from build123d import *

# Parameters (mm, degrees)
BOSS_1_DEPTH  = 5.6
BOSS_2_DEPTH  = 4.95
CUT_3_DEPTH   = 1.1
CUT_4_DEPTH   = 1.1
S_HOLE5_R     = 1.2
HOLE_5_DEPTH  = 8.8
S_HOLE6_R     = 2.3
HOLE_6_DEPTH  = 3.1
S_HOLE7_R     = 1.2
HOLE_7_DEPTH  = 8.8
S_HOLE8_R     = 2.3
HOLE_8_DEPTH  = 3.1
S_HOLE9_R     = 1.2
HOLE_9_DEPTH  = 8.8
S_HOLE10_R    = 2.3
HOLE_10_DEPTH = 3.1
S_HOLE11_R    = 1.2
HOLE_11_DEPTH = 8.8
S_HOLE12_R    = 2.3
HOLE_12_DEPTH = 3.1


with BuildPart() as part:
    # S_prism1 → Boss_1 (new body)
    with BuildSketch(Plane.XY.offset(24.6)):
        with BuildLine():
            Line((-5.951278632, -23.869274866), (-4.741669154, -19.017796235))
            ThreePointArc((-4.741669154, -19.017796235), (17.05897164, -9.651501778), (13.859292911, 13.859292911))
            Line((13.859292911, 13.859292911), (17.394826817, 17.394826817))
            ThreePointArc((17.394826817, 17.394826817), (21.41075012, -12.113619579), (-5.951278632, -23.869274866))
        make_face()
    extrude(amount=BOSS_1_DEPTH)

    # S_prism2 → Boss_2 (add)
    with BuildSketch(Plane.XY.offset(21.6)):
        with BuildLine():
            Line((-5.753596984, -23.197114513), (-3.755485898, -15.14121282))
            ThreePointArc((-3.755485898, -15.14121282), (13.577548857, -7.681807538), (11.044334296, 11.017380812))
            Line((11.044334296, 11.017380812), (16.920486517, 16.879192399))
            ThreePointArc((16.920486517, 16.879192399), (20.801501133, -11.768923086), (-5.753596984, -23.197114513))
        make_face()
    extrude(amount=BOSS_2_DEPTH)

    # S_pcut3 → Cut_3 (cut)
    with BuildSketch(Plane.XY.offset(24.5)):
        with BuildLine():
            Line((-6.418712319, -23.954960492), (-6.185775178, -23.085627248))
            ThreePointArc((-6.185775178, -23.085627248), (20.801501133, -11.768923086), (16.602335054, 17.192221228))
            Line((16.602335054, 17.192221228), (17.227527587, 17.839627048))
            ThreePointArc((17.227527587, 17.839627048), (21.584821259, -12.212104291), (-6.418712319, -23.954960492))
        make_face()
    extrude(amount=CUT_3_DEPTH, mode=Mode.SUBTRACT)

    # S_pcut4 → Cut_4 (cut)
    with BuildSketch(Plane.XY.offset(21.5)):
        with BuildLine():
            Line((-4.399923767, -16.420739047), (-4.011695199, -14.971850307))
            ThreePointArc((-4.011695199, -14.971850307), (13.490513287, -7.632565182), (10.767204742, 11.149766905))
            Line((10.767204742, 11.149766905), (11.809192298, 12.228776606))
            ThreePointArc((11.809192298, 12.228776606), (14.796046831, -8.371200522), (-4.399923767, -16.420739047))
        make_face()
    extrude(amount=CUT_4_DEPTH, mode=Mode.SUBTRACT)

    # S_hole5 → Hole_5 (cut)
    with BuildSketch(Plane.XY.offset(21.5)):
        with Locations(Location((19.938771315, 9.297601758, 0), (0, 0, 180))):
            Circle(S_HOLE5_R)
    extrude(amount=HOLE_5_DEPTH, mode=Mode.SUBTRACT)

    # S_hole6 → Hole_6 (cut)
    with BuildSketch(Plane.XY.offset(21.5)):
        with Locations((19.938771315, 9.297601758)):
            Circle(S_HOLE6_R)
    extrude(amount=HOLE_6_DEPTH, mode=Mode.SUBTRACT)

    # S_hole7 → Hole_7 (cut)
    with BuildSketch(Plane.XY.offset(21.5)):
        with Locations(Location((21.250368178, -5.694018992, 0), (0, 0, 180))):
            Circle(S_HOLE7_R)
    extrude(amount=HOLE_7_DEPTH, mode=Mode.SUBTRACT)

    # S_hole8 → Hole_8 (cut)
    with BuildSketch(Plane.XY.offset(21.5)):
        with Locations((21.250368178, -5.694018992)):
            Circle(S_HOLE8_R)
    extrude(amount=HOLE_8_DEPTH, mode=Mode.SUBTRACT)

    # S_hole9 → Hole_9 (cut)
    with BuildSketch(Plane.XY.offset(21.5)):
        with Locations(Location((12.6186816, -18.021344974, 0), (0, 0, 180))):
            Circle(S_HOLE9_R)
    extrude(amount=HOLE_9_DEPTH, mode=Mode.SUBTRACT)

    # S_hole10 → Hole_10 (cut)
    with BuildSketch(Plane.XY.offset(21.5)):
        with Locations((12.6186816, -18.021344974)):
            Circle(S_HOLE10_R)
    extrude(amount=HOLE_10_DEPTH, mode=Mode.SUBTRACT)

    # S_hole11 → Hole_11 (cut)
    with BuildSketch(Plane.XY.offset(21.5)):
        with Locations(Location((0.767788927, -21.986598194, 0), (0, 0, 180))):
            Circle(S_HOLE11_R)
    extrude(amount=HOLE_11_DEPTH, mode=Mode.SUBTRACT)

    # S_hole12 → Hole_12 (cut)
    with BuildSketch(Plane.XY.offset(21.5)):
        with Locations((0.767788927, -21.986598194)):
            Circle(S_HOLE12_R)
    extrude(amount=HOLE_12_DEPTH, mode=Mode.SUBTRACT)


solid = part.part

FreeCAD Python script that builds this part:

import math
import FreeCAD as App
import Part
import Sketcher

V = App.Vector
Q = App.Units.Quantity

doc = App.newDocument("Part")
params = doc.addObject("Spreadsheet::Sheet", "Params")
for row, (alias, value) in enumerate([
    ("sketch1_radius", "24.6 mm"),
    ("sketch1_radius2", "19.6 mm"),
    ("pad1_length", "5.6 mm"),
    ("sketch2_radius", "23.9 mm"),
    ("sketch2_radius2", "15.6 mm"),
    ("pad2_length", "4.95 mm"),
    ("sketch3_radius", "24.8 mm"),
    ("sketch3_radius2", "23.9 mm"),
    ("pocket1_length", "1.1 mm"),
    ("sketch4_radius", "17 mm"),
    ("sketch4_radius2", "15.5 mm"),
    ("pocket2_length", "1.1 mm"),
    ("sketch5_diameter", "2.4 mm"),
    ("pocket3_length", "8.8 mm"),
    ("sketch6_diameter", "4.6 mm"),
    ("pocket4_length", "3.1 mm"),
    ("sketch7_diameter", "2.4 mm"),
    ("pocket5_length", "8.8 mm"),
    ("sketch8_diameter", "4.6 mm"),
    ("pocket6_length", "3.1 mm"),
    ("sketch9_diameter", "2.4 mm"),
    ("pocket7_length", "8.8 mm"),
    ("sketch10_diameter", "4.6 mm"),
    ("pocket8_length", "3.1 mm"),
    ("sketch11_diameter", "2.4 mm"),
    ("pocket9_length", "8.8 mm"),
    ("sketch12_diameter", "4.6 mm"),
    ("pocket10_length", "3.1 mm"),
], start=1):
    params.set(f"A{row}", alias)
    params.set(f"B{row}", "=" + value)
    params.setAlias(f"B{row}", alias)

body = doc.addObject("PartDesign::Body", "Body")

# Sketch on XY plane
sketch1 = doc.addObject("Sketcher::SketchObject", "Sketch")
body.addObject(sketch1)
sketch1.AttachmentSupport = (doc.XY_Plane, [""])
sketch1.MapMode = "FlatFace"
sketch1.AttachmentOffset = App.Placement(V(0, 0, 24.6), App.Rotation())
sketch1.addGeometry([
    Part.LineSegment(V(-4.7, -19, 0), V(-6, -23.9, 0)),
    Part.ArcOfCircle(Part.Circle(V(0, 0, 0), V(0, 0, 1), 24.6), math.radians(-104), math.radians(45)),
    Part.LineSegment(V(17.4, 17.4, 0), V(13.9, 13.9, 0)),
    Part.ArcOfCircle(Part.Circle(V(0, 0, 0), V(0, 0, 1), 19.6), math.radians(-104), math.radians(45)),
], False)
sketch1.addConstraint([
    Sketcher.Constraint("Coincident", 0, 2, 1, 1),
    Sketcher.Constraint("Coincident", 1, 2, 2, 1),
    Sketcher.Constraint("Coincident", 2, 2, 3, 2),
    Sketcher.Constraint("Coincident", 3, 1, 0, 1),
    Sketcher.Constraint("Coincident", 1, 3, -1, 1),
    Sketcher.Constraint("Coincident", 3, 3, -1, 1),
    Sketcher.Constraint("Radius", 1, Q("24.6 mm")),
    Sketcher.Constraint("Radius", 3, Q("19.6 mm")),
    Sketcher.Constraint("Angle", 0, Q("-104 deg")),
    Sketcher.Constraint("Angle", 2, Q("-135 deg")),
    Sketcher.Constraint("DistanceY", 0, 2, 1, 2, Q("41.264102 mm")),
    Sketcher.Constraint("DistanceX", 0, 2, -1, 1, Q("5.951279 mm")),
])
sketch1.setExpression("Constraints[6]", "Params.sketch1_radius")
sketch1.setExpression("Constraints[7]", "Params.sketch1_radius2")
pad1 = doc.addObject("PartDesign::Pad", "Pad")
body.addObject(pad1)
pad1.Profile = sketch1
pad1.setExpression("Length", "Params.pad1_length")

# Sketch on XY plane
sketch2 = doc.addObject("Sketcher::SketchObject", "Sketch001")
body.addObject(sketch2)
sketch2.AttachmentSupport = (doc.XY_Plane, [""])
sketch2.MapMode = "FlatFace"
sketch2.AttachmentOffset = App.Placement(V(0, 0, 21.6), App.Rotation())
sketch2.addGeometry([
    Part.LineSegment(V(-4, -15, 0), V(-6, -23, 0)),
    Part.ArcOfCircle(Part.Circle(V(0, 0, 0), V(0, 0, 1), 24), math.radians(-104), math.radians(45)),
    Part.LineSegment(V(17, 17, 0), V(11, 11, 0)),
    Part.ArcOfCircle(Part.Circle(V(0, 0, 0), V(0, 0, 1), 16), math.radians(-104), math.radians(45)),
], False)
sketch2.addConstraint([
    Sketcher.Constraint("Coincident", 0, 2, 1, 1),
    Sketcher.Constraint("Coincident", 1, 2, 2, 1),
    Sketcher.Constraint("Coincident", 2, 2, 3, 2),
    Sketcher.Constraint("Coincident", 3, 1, 0, 1),
    Sketcher.Constraint("Coincident", 1, 3, -1, 1),
    Sketcher.Constraint("Coincident", 3, 3, -1, 1),
    Sketcher.Constraint("Radius", 1, Q("23.9 mm")),
    Sketcher.Constraint("Radius", 3, Q("15.6 mm")),
    Sketcher.Constraint("Angle", 0, Q("-103.93 deg")),
    Sketcher.Constraint("Angle", 2, Q("-135.07 deg")),
    Sketcher.Constraint("DistanceY", -1, 1, 2, 2, Q("11.017381 mm")),
    Sketcher.Constraint("DistanceX", 0, 2, 2, 2, Q("16.797931 mm")),
])
sketch2.setExpression("Constraints[6]", "Params.sketch2_radius")
sketch2.setExpression("Constraints[7]", "Params.sketch2_radius2")
pad2 = doc.addObject("PartDesign::Pad", "Pad001")
body.addObject(pad2)
pad2.Profile = sketch2
pad2.setExpression("Length", "Params.pad2_length")

# Sketch on XY plane
sketch3 = doc.addObject("Sketcher::SketchObject", "Sketch002")
body.addObject(sketch3)
sketch3.AttachmentSupport = (doc.XY_Plane, [""])
sketch3.MapMode = "FlatFace"
sketch3.AttachmentOffset = App.Placement(V(0, 0, 24.5), App.Rotation())
sketch3.addGeometry([
    Part.LineSegment(V(-6.2, -23.1, 0), V(-6.4, -24, 0)),
    Part.ArcOfCircle(Part.Circle(V(0, 0, 0), V(0, 0, 1), 24.8), math.radians(-105), math.radians(46)),
    Part.LineSegment(V(17.2, 17.8, 0), V(16.6, 17.2, 0)),
    Part.ArcOfCircle(Part.Circle(V(0, 0, 0), V(0, 0, 1), 23.9), math.radians(-105), math.radians(46)),
], False)
sketch3.addConstraint([
    Sketcher.Constraint("Coincident", 0, 2, 1, 1),
    Sketcher.Constraint("Coincident", 1, 2, 2, 1),
    Sketcher.Constraint("Coincident", 2, 2, 3, 2),
    Sketcher.Constraint("Coincident", 3, 1, 0, 1),
    Sketcher.Constraint("Coincident", 1, 3, -1, 1),
    Sketcher.Constraint("Coincident", 3, 3, -1, 1),
    Sketcher.Constraint("Radius", 1, Q("24.8 mm")),
    Sketcher.Constraint("Radius", 3, Q("23.9 mm")),
    Sketcher.Constraint("Angle", 0, Q("-105 deg")),
    Sketcher.Constraint("Angle", 2, Q("-134 deg")),
    Sketcher.Constraint("DistanceY", 0, 2, -1, 1, Q("23.95496 mm")),
    Sketcher.Constraint("DistanceY", -1, 1, 2, 2, Q("17.192221 mm")),
])
sketch3.setExpression("Constraints[6]", "Params.sketch3_radius")
sketch3.setExpression("Constraints[7]", "Params.sketch3_radius2")
pocket1 = doc.addObject("PartDesign::Pocket", "Pocket")
body.addObject(pocket1)
pocket1.Profile = sketch3
pocket1.setExpression("Length", "Params.pocket1_length")
pocket1.Reversed = True

# Sketch on XY plane
sketch4 = doc.addObject("Sketcher::SketchObject", "Sketch003")
body.addObject(sketch4)
sketch4.AttachmentSupport = (doc.XY_Plane, [""])
sketch4.MapMode = "FlatFace"
sketch4.AttachmentOffset = App.Placement(V(0, 0, 21.5), App.Rotation())
sketch4.addGeometry([
    Part.LineSegment(V(-4, -15, 0), V(-4.4, -16.4, 0)),
    Part.ArcOfCircle(Part.Circle(V(0, 0, 0), V(0, 0, 1), 17), math.radians(-105), math.radians(46)),
    Part.LineSegment(V(11.8, 12.2, 0), V(10.8, 11.1, 0)),
    Part.ArcOfCircle(Part.Circle(V(0, 0, 0), V(0, 0, 1), 15.5), math.radians(-105), math.radians(46)),
], False)
sketch4.addConstraint([
    Sketcher.Constraint("Coincident", 0, 2, 1, 1),
    Sketcher.Constraint("Coincident", 1, 2, 2, 1),
    Sketcher.Constraint("Coincident", 2, 2, 3, 2),
    Sketcher.Constraint("Coincident", 3, 1, 0, 1),
    Sketcher.Constraint("Coincident", 1, 3, -1, 1),
    Sketcher.Constraint("Coincident", 3, 3, -1, 1),
    Sketcher.Constraint("Radius", 1, Q("17 mm")),
    Sketcher.Constraint("Radius", 3, Q("15.5 mm")),
    Sketcher.Constraint("Angle", 0, Q("-105 deg")),
    Sketcher.Constraint("Angle", 2, Q("-134 deg")),
    Sketcher.Constraint("DistanceX", 3, 1, 2, 2, Q("14.7789 mm")),
    Sketcher.Constraint("DistanceY", 0, 2, -1, 1, Q("16.420739 mm")),
])
sketch4.setExpression("Constraints[6]", "Params.sketch4_radius")
sketch4.setExpression("Constraints[7]", "Params.sketch4_radius2")
pocket2 = doc.addObject("PartDesign::Pocket", "Pocket001")
body.addObject(pocket2)
pocket2.Profile = sketch4
pocket2.setExpression("Length", "Params.pocket2_length")
pocket2.Reversed = True

# Sketch on XY plane
sketch5 = doc.addObject("Sketcher::SketchObject", "Sketch004")
body.addObject(sketch5)
sketch5.AttachmentSupport = (doc.XY_Plane, [""])
sketch5.MapMode = "FlatFace"
sketch5.AttachmentOffset = App.Placement(V(0, 0, 21.5), App.Rotation())
sketch5.addGeometry(Part.Circle(V(19.9, 9.3, 0), V(0, 0, 1), 1.2), False)
sketch5.addConstraint([
    Sketcher.Constraint("Diameter", 0, Q("2.4 mm")),
    Sketcher.Constraint("DistanceY", -1, 1, 0, 3, Q("9.297602 mm")),
    Sketcher.Constraint("DistanceX", -1, 1, 0, 3, Q("19.938771 mm")),
])
sketch5.setExpression("Constraints[0]", "Params.sketch5_diameter")
pocket3 = doc.addObject("PartDesign::Pocket", "Pocket002")
body.addObject(pocket3)
pocket3.Profile = sketch5
pocket3.setExpression("Length", "Params.pocket3_length")
pocket3.Reversed = True

# Sketch on XY plane
sketch6 = doc.addObject("Sketcher::SketchObject", "Sketch005")
body.addObject(sketch6)
sketch6.AttachmentSupport = (doc.XY_Plane, [""])
sketch6.MapMode = "FlatFace"
sketch6.AttachmentOffset = App.Placement(V(0, 0, 21.5), App.Rotation())
sketch6.addGeometry(Part.Circle(V(19.9, 9.3, 0), V(0, 0, 1), 2.3), False)
sketch6.addConstraint([
    Sketcher.Constraint("Diameter", 0, Q("4.6 mm")),
    Sketcher.Constraint("DistanceY", -1, 1, 0, 3, Q("9.297602 mm")),
    Sketcher.Constraint("DistanceX", -1, 1, 0, 3, Q("19.938771 mm")),
])
sketch6.setExpression("Constraints[0]", "Params.sketch6_diameter")
pocket4 = doc.addObject("PartDesign::Pocket", "Pocket003")
body.addObject(pocket4)
pocket4.Profile = sketch6
pocket4.setExpression("Length", "Params.pocket4_length")
pocket4.Reversed = True

# Sketch on XY plane
sketch7 = doc.addObject("Sketcher::SketchObject", "Sketch006")
body.addObject(sketch7)
sketch7.AttachmentSupport = (doc.XY_Plane, [""])
sketch7.MapMode = "FlatFace"
sketch7.AttachmentOffset = App.Placement(V(0, 0, 21.5), App.Rotation())
sketch7.addGeometry(Part.Circle(V(21.3, -5.7, 0), V(0, 0, 1), 1.2), False)
sketch7.addConstraint([
    Sketcher.Constraint("Diameter", 0, Q("2.4 mm")),
    Sketcher.Constraint("DistanceX", -1, 1, 0, 3, Q("21.250368 mm")),
    Sketcher.Constraint("DistanceY", 0, 3, -1, 1, Q("5.694019 mm")),
])
sketch7.setExpression("Constraints[0]", "Params.sketch7_diameter")
pocket5 = doc.addObject("PartDesign::Pocket", "Pocket004")
body.addObject(pocket5)
pocket5.Profile = sketch7
pocket5.setExpression("Length", "Params.pocket5_length")
pocket5.Reversed = True

# Sketch on XY plane
sketch8 = doc.addObject("Sketcher::SketchObject", "Sketch007")
body.addObject(sketch8)
sketch8.AttachmentSupport = (doc.XY_Plane, [""])
sketch8.MapMode = "FlatFace"
sketch8.AttachmentOffset = App.Placement(V(0, 0, 21.5), App.Rotation())
sketch8.addGeometry(Part.Circle(V(21.3, -5.7, 0), V(0, 0, 1), 2.3), False)
sketch8.addConstraint([
    Sketcher.Constraint("Diameter", 0, Q("4.6 mm")),
    Sketcher.Constraint("DistanceX", -1, 1, 0, 3, Q("21.250368 mm")),
    Sketcher.Constraint("DistanceY", 0, 3, -1, 1, Q("5.694019 mm")),
])
sketch8.setExpression("Constraints[0]", "Params.sketch8_diameter")
pocket6 = doc.addObject("PartDesign::Pocket", "Pocket005")
body.addObject(pocket6)
pocket6.Profile = sketch8
pocket6.setExpression("Length", "Params.pocket6_length")
pocket6.Reversed = True

# Sketch on XY plane
sketch9 = doc.addObject("Sketcher::SketchObject", "Sketch008")
body.addObject(sketch9)
sketch9.AttachmentSupport = (doc.XY_Plane, [""])
sketch9.MapMode = "FlatFace"
sketch9.AttachmentOffset = App.Placement(V(0, 0, 21.5), App.Rotation())
sketch9.addGeometry(Part.Circle(V(12.6, -18, 0), V(0, 0, 1), 1.2), False)
sketch9.addConstraint([
    Sketcher.Constraint("Diameter", 0, Q("2.4 mm")),
    Sketcher.Constraint("DistanceX", -1, 1, 0, 3, Q("12.618682 mm")),
    Sketcher.Constraint("DistanceY", 0, 3, -1, 1, Q("18.021345 mm")),
])
sketch9.setExpression("Constraints[0]", "Params.sketch9_diameter")
pocket7 = doc.addObject("PartDesign::Pocket", "Pocket006")
body.addObject(pocket7)
pocket7.Profile = sketch9
pocket7.setExpression("Length", "Params.pocket7_length")
pocket7.Reversed = True

# Sketch on XY plane
sketch10 = doc.addObject("Sketcher::SketchObject", "Sketch009")
body.addObject(sketch10)
sketch10.AttachmentSupport = (doc.XY_Plane, [""])
sketch10.MapMode = "FlatFace"
sketch10.AttachmentOffset = App.Placement(V(0, 0, 21.5), App.Rotation())
sketch10.addGeometry(Part.Circle(V(12.6, -18, 0), V(0, 0, 1), 2.3), False)
sketch10.addConstraint([
    Sketcher.Constraint("Diameter", 0, Q("4.6 mm")),
    Sketcher.Constraint("DistanceX", -1, 1, 0, 3, Q("12.618682 mm")),
    Sketcher.Constraint("DistanceY", 0, 3, -1, 1, Q("18.021345 mm")),
])
sketch10.setExpression("Constraints[0]", "Params.sketch10_diameter")
pocket8 = doc.addObject("PartDesign::Pocket", "Pocket007")
body.addObject(pocket8)
pocket8.Profile = sketch10
pocket8.setExpression("Length", "Params.pocket8_length")
pocket8.Reversed = True

# Sketch on XY plane
sketch11 = doc.addObject("Sketcher::SketchObject", "Sketch010")
body.addObject(sketch11)
sketch11.AttachmentSupport = (doc.XY_Plane, [""])
sketch11.MapMode = "FlatFace"
sketch11.AttachmentOffset = App.Placement(V(0, 0, 21.5), App.Rotation())
sketch11.addGeometry(Part.Circle(V(0.8, -22, 0), V(0, 0, 1), 1.2), False)
sketch11.addConstraint([
    Sketcher.Constraint("Diameter", 0, Q("2.4 mm")),
    Sketcher.Constraint("DistanceY", 0, 3, -1, 1, Q("21.986598 mm")),
    Sketcher.Constraint("DistanceX", -1, 1, 0, 3, Q("0.767789 mm")),
])
sketch11.setExpression("Constraints[0]", "Params.sketch11_diameter")
pocket9 = doc.addObject("PartDesign::Pocket", "Pocket008")
body.addObject(pocket9)
pocket9.Profile = sketch11
pocket9.setExpression("Length", "Params.pocket9_length")
pocket9.Reversed = True

# Sketch on XY plane
sketch12 = doc.addObject("Sketcher::SketchObject", "Sketch011")
body.addObject(sketch12)
sketch12.AttachmentSupport = (doc.XY_Plane, [""])
sketch12.MapMode = "FlatFace"
sketch12.AttachmentOffset = App.Placement(V(0, 0, 21.5), App.Rotation())
sketch12.addGeometry(Part.Circle(V(0.8, -22, 0), V(0, 0, 1), 2.3), False)
sketch12.addConstraint([
    Sketcher.Constraint("Diameter", 0, Q("4.6 mm")),
    Sketcher.Constraint("DistanceY", 0, 3, -1, 1, Q("21.986598 mm")),
    Sketcher.Constraint("DistanceX", -1, 1, 0, 3, Q("0.767789 mm")),
])
sketch12.setExpression("Constraints[0]", "Params.sketch12_diameter")
pocket10 = doc.addObject("PartDesign::Pocket", "Pocket009")
body.addObject(pocket10)
pocket10.Profile = sketch12
pocket10.setExpression("Length", "Params.pocket10_length")
pocket10.Reversed = True

doc.recompute()
